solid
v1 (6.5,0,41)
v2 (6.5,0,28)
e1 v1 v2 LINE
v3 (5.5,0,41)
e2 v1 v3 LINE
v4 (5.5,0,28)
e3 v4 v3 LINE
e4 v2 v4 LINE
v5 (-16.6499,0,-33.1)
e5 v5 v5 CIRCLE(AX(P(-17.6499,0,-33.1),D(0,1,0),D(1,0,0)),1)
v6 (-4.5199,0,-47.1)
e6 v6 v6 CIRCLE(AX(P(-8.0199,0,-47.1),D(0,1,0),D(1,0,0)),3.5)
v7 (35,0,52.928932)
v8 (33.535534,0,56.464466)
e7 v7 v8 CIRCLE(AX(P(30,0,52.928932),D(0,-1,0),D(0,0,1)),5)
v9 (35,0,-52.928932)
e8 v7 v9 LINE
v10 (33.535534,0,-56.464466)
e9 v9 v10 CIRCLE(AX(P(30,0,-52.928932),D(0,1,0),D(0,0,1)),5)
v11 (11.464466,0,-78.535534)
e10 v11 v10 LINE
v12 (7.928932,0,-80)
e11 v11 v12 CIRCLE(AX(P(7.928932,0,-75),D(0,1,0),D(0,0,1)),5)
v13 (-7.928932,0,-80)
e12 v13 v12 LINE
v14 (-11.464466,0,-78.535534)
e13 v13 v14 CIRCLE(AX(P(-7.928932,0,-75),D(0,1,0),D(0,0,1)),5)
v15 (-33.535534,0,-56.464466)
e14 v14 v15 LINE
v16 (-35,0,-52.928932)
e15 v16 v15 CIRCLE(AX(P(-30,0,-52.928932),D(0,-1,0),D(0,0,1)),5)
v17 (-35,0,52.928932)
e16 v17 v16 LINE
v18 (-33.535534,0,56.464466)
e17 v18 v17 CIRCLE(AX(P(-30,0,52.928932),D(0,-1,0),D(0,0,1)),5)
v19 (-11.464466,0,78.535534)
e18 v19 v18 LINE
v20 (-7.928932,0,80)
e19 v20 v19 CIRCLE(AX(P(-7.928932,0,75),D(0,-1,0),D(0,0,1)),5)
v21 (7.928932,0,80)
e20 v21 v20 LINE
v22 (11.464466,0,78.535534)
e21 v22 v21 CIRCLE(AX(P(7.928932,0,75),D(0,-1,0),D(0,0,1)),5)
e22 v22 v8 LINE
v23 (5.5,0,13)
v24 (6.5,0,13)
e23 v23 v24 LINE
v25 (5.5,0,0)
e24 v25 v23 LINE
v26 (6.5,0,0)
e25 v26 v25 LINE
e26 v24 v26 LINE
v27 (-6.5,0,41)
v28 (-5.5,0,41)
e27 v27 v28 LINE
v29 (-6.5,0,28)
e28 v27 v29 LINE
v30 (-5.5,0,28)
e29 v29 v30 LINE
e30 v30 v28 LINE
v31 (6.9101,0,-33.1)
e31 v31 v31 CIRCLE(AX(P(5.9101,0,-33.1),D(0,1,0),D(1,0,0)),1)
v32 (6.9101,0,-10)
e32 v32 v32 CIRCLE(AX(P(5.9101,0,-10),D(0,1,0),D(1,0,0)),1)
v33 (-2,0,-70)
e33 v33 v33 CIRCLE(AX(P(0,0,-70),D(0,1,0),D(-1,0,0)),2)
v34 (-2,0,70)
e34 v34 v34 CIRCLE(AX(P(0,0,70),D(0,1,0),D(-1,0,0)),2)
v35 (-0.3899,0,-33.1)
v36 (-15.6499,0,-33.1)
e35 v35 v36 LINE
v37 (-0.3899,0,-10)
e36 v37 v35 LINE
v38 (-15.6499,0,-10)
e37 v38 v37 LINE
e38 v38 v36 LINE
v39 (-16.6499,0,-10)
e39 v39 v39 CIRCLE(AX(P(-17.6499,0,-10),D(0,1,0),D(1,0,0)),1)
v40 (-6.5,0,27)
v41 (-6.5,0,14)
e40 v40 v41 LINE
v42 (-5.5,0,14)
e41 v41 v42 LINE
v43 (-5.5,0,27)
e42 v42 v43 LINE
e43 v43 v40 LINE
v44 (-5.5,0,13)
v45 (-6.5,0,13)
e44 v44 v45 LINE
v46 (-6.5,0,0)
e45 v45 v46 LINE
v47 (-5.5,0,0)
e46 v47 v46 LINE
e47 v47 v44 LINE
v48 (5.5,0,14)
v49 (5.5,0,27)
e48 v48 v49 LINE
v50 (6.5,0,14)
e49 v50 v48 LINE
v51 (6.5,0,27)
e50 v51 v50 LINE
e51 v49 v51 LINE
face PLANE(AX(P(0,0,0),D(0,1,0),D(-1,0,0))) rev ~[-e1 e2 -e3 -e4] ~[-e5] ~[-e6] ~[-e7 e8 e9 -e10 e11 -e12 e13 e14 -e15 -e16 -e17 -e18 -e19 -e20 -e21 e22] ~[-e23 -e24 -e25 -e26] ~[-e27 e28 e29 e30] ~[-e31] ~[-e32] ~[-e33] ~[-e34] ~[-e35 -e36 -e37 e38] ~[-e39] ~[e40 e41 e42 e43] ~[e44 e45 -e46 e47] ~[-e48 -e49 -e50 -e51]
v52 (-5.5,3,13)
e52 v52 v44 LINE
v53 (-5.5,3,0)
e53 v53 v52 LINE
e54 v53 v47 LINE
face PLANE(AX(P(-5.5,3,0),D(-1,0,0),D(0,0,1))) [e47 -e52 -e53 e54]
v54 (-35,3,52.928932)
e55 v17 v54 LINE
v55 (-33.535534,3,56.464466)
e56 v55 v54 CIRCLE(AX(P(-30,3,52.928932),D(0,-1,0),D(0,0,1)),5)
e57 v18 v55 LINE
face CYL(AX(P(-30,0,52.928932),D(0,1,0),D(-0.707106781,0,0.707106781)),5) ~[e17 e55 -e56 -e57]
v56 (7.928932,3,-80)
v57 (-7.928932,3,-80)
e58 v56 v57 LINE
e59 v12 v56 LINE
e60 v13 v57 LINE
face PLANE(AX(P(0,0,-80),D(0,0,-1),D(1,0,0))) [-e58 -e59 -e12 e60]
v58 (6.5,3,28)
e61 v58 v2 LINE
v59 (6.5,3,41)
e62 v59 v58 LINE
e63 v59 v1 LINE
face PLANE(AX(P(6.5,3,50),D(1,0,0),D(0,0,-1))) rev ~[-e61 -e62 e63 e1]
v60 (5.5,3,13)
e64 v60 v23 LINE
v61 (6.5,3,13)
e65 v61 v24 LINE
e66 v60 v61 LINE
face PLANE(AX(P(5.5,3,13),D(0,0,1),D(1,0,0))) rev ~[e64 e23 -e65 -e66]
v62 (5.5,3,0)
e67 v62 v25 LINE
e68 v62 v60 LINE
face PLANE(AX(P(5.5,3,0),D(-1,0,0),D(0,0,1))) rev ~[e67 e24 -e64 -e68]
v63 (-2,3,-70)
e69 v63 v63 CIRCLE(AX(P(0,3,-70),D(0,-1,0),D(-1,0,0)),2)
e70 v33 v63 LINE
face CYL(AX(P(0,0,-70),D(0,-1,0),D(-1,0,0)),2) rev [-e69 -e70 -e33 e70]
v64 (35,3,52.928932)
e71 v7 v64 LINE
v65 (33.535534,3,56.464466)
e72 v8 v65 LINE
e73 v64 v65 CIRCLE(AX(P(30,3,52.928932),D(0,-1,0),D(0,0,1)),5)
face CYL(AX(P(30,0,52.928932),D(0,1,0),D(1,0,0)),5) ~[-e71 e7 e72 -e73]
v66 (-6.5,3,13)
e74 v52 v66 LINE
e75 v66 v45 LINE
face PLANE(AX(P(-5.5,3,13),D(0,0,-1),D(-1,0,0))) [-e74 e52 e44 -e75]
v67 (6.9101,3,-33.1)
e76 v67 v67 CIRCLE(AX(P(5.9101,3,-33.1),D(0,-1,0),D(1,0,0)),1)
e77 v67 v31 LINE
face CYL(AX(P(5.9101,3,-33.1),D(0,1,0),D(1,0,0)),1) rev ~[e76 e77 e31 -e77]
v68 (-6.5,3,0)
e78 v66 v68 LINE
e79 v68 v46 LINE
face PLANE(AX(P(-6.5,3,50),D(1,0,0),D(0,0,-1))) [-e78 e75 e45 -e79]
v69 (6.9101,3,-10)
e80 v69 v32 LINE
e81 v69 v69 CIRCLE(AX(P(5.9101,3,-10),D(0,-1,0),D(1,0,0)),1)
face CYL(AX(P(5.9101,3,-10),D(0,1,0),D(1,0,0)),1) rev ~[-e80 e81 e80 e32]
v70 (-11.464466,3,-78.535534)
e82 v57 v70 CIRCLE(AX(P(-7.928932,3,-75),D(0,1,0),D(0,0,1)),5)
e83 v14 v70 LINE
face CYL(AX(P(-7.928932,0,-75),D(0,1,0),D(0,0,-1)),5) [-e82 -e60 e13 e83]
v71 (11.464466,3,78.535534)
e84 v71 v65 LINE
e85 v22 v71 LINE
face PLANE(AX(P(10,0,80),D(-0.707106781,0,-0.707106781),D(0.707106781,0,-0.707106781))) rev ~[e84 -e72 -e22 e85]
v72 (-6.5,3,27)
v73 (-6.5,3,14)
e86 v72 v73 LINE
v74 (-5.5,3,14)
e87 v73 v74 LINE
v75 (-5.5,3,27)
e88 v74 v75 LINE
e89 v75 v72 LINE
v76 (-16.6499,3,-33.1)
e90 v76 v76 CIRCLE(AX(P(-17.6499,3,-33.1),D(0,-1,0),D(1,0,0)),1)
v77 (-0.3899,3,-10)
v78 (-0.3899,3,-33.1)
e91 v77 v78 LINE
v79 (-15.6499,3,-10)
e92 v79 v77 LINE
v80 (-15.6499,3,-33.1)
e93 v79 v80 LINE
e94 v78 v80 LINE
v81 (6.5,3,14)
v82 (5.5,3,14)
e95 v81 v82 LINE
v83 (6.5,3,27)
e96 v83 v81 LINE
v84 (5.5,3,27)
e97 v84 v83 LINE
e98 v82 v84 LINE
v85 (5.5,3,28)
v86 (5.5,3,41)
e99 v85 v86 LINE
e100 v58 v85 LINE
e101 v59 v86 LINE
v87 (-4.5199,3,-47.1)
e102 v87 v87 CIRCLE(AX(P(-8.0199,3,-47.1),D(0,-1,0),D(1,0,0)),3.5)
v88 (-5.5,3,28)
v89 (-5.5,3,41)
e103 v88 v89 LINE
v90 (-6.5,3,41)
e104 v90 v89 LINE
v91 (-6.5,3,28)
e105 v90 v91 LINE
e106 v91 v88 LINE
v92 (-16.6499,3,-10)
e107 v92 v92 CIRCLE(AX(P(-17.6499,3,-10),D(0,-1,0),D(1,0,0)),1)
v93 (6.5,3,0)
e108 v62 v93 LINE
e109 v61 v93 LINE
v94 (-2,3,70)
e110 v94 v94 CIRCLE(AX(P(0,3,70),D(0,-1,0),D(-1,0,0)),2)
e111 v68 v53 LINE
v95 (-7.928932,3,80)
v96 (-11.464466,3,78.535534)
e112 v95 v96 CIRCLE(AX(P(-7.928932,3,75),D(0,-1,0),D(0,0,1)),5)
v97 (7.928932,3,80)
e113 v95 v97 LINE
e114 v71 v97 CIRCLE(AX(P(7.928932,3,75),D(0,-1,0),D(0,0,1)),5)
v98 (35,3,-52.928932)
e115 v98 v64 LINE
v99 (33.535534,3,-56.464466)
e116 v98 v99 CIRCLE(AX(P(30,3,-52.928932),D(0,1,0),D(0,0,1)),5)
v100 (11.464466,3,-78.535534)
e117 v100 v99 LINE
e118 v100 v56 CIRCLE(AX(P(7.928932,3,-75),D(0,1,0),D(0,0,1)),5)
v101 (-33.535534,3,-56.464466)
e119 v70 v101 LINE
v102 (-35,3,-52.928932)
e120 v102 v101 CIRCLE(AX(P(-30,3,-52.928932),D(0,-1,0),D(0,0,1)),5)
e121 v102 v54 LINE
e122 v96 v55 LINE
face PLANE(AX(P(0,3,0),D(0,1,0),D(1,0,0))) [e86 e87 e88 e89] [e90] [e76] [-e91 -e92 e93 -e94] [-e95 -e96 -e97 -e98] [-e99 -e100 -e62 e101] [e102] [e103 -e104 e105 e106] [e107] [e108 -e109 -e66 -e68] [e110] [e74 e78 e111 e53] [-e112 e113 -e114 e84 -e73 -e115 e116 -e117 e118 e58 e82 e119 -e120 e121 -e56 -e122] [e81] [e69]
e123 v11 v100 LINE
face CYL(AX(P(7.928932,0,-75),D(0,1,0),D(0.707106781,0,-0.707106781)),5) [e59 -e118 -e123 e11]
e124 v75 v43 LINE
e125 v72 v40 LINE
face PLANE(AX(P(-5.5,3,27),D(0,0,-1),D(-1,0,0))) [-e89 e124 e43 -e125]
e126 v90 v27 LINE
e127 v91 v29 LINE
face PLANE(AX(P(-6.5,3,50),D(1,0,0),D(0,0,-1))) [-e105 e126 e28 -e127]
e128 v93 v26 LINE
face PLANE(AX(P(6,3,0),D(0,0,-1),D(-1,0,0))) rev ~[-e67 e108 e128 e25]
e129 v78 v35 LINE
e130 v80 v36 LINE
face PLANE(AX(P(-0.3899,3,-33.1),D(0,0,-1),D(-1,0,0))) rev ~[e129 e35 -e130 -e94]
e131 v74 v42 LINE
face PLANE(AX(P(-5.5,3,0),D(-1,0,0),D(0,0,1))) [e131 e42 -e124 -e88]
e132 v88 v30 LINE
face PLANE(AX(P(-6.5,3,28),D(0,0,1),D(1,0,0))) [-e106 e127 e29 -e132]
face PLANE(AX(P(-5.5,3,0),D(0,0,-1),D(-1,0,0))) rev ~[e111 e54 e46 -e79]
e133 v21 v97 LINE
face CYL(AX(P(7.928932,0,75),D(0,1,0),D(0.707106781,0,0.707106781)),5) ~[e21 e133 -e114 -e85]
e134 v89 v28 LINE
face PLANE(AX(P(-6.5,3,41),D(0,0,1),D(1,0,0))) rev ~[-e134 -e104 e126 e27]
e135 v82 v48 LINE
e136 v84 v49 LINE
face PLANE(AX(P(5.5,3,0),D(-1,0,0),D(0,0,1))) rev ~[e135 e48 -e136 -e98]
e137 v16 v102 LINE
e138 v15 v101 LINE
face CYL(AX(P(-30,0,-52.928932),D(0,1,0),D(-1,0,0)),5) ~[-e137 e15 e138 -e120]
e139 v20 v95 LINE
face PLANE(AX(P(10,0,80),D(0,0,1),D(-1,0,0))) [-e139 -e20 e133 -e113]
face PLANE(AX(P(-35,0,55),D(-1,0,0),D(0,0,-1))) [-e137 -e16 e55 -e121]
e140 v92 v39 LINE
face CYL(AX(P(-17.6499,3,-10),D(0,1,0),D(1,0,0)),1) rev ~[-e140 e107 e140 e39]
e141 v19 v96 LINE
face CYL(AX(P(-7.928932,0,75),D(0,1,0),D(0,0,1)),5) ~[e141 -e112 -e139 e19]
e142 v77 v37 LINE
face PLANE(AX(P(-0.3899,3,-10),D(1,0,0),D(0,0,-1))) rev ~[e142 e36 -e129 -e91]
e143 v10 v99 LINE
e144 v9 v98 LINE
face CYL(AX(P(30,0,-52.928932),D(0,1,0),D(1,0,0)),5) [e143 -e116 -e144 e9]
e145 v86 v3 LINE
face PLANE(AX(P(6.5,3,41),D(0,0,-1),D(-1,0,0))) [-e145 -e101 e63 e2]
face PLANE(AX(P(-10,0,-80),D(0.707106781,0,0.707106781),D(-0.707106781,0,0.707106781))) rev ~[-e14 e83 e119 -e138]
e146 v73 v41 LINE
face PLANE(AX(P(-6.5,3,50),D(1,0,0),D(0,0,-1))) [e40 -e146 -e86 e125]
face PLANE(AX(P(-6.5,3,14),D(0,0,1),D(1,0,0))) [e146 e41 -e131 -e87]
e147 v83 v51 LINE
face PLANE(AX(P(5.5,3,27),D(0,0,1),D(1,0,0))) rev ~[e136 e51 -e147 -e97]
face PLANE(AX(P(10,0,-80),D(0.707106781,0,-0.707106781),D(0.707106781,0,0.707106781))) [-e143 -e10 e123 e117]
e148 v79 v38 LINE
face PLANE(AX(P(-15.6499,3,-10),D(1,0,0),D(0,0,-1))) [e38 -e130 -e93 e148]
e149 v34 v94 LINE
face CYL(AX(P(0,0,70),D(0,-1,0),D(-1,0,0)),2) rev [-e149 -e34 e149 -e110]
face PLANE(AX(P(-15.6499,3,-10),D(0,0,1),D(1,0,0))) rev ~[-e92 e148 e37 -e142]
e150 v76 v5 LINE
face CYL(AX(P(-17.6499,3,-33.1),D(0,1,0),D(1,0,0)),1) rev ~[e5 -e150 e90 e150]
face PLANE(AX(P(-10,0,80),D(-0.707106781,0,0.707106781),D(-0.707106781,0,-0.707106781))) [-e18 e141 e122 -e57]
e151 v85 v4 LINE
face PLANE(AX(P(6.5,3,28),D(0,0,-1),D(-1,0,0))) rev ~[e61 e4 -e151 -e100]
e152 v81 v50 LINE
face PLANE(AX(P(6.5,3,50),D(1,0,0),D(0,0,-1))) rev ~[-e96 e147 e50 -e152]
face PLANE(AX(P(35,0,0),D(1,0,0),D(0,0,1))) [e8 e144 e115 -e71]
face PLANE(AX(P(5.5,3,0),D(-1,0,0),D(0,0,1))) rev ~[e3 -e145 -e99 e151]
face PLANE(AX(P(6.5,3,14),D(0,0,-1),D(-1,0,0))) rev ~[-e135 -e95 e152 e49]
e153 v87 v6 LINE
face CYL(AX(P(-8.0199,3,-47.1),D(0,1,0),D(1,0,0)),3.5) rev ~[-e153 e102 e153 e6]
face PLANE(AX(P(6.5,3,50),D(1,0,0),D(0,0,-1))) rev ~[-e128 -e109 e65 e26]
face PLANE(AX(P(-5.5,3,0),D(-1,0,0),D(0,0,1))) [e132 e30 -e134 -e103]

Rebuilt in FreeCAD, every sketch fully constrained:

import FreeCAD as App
import Part
import Sketcher

V = App.Vector
Q = App.Units.Quantity


def edges_at(feature, points):
    """Names of the edges that pass closest to the given points."""
    edges = feature.Shape.Edges
    near = lambda p: min(range(len(edges)), key=lambda i: edges[i].distToShape(Part.Vertex(*p))[0])
    return sorted({f"Edge{near(p) + 1}" for p in points})


def add_polygon(sketch, points):
    """Adds a closed chain of lines whose ends are joined by coincident constraints."""
    first, n = sketch.GeometryCount, len(points)
    for a, b in zip(points, points[1:] + points[:1]):
        sketch.addGeometry(Part.LineSegment(App.Vector(*a, 0), App.Vector(*b, 0)), False)
    for i in range(n):
        sketch.addConstraint(Sketcher.Constraint("Coincident", first + i, 2, first + (i + 1) % n, 1))

doc = App.newDocument("Part")
body = doc.addObject("PartDesign::Body", "Body")

# Sketch on XZ plane
sketch1 = doc.addObject("Sketcher::SketchObject", "Sketch")
body.addObject(sketch1)
sketch1.AttachmentSupport = (doc.XZ_Plane, [""])
sketch1.MapMode = "FlatFace"
add_polygon(sketch1, [(35, 55), (35, -55), (10, -80), (-10, -80), (-35, -55), (-35, 55), (-10, 80), (10, 80)])  # lines 0-7
sketch1.addGeometry(Part.Circle(V(0, 70, 0), V(0, 0, 1), 2), False)  # 8
sketch1.addGeometry(Part.Circle(V(0, -70, 0), V(0, 0, 1), 2), False)  # 9
sketch1.addConstraint([
    Sketcher.Constraint("Vertical", 0),
    Sketcher.Constraint("Horizontal", 2),
    Sketcher.Constraint("Vertical", 4),
    Sketcher.Constraint("Horizontal", 6),
    Sketcher.Constraint("Equal", 8, 9),
    Sketcher.Constraint("Symmetric", 8, 3, 9, 3, -1, 1),
    Sketcher.Constraint("Symmetric", 0, 2, 4, 2, -1, 1),
    Sketcher.Constraint("Symmetric", 1, 2, 5, 2, -1, 1),
    Sketcher.Constraint("PointOnObject", 8, 3, -2),
    Sketcher.Constraint("Perpendicular", 1, 3),
    Sketcher.Constraint("Perpendicular", 5, 7),
    Sketcher.Constraint("Horizontal", 0, 2, 3, 2),
    Sketcher.Constraint("Horizontal", 4, 2, 7, 2),
    Sketcher.Constraint("Vertical", 2, 2, 5, 2),
    Sketcher.Constraint("Diameter", 8, Q("4 mm")),
    Sketcher.Constraint("DistanceY", -1, 1, 8, 3, Q("70 mm")),
    Sketcher.Constraint("DistanceX", -1, 1, 0, 2, Q("35 mm")),
    Sketcher.Constraint("DistanceX", -1, 1, 1, 2, Q("10 mm")),
    Sketcher.Constraint("DistanceY", 1, 2, -1, 1, Q("80 mm")),
])
pad1 = doc.addObject("PartDesign::Pad", "Pad")
body.addObject(pad1)
pad1.Profile = sketch1
pad1.Length = 3
pad1.Reversed = True
doc.recompute()

fillet = doc.addObject("PartDesign::Fillet", "Fillet")
body.addObject(fillet)
fillet.Base = (pad1, edges_at(pad1, [
    (-35, 1.5, 55),
    (-10, 1.5, 80),
    (-35, 1.5, -55),
    (35, 1.5, 55),
    (10, 1.5, 80),
    (35, 1.5, -55),
    (10, 1.5, -80),
    (-10, 1.5, -80),
]))
fillet.Radius = 5

# Sketch on XZ plane
sketch2 = doc.addObject("Sketcher::SketchObject", "Sketch001")
body.addObject(sketch2)
sketch2.AttachmentSupport = (doc.XZ_Plane, [""])
sketch2.MapMode = "FlatFace"
sketch2.AttachmentOffset = App.Placement(V(0, 0, -3), App.Rotation())
sketch2.addGeometry(Part.Circle(V(20, -21.6, 0), V(0, 0, 1), 3.5), False)  # 0
add_polygon(sketch2, [(-5.5, 50), (-5.5, 0), (-6.5, 0), (-6.5, 50)])  # lines 1-4
add_polygon(sketch2, [(5.5, 0), (5.5, 50), (6.5, 50), (6.5, 0)])  # lines 5-8
sketch2.addGeometry(Part.Circle(V(-17.6, -10, 0), V(0, 0, 1), 1), False)  # 9
sketch2.addGeometry(Part.Circle(V(5.9, -10, 0), V(0, 0, 1), 1), False)  # 10
sketch2.addGeometry(Part.Circle(V(-17.6, -33.1, 0), V(0, 0, 1), 1), False)  # 11
sketch2.addGeometry(Part.Circle(V(5.9, -33.1, 0), V(0, 0, 1), 1), False)  # 12
sketch2.addConstraint([
    Sketcher.Constraint("Vertical", 1),
    Sketcher.Constraint("Horizontal", 2),
    Sketcher.Constraint("Vertical", 3),
    Sketcher.Constraint("Horizontal", 4),
    Sketcher.Constraint("Vertical", 5),
    Sketcher.Constraint("Horizontal", 6),
    Sketcher.Constraint("Vertical", 7),
    Sketcher.Constraint("Horizontal", 8),
    Sketcher.Constraint("Equal", 9, 10),
    Sketcher.Constraint("Equal", 10, 11),
    Sketcher.Constraint("Equal", 11, 12),
    Sketcher.Constraint("Symmetric", 2, 2, 7, 2, -1, 1),
    Sketcher.Constraint("Symmetric", 4, 2, 5, 2, -2),
    Sketcher.Constraint("PointOnObject", 1, 2, -1),
    Sketcher.Constraint("Horizontal", 9, 3, 10, 3),
    Sketcher.Constraint("Horizontal", 11, 3, 12, 3),
    Sketcher.Constraint("Vertical", 9, 3, 11, 3),
    Sketcher.Constraint("Vertical", 10, 3, 12, 3),
    Sketcher.Constraint("Diameter", 0, Q("7 mm")),
    Sketcher.Constraint("Diameter", 9, Q("2 mm")),
    Sketcher.Constraint("DistanceX", 2, 2, 2, 1, Q("1 mm")),
    Sketcher.Constraint("DistanceY", 1, 2, 1, 1, Q("50 mm")),
    Sketcher.Constraint("DistanceX", -1, 1, 0, 3, Q("20 mm")),
    Sketcher.Constraint("DistanceY", 9, 3, -1, 1, Q("10 mm")),
    Sketcher.Constraint("DistanceX", 3, 2, 5, 2, Q("12 mm")),
    Sketcher.Constraint("DistanceY", 11, 3, 9, 3, Q("23.1 mm")),
    Sketcher.Constraint("DistanceY", 0, 3, 9, 3, Q("11.55 mm")),
    Sketcher.Constraint("DistanceX", 9, 3, 10, 3, Q("23.56 mm")),
    Sketcher.Constraint("DistanceX", 9, 3, -1, 1, Q("17.65 mm")),
])
pocket1 = doc.addObject("PartDesign::Pocket", "Pocket")
body.addObject(pocket1)
pocket1.Profile = sketch2
pocket1.Length = 10
pocket1.Reversed = True

# Sketch on XZ plane
sketch3 = doc.addObject("Sketcher::SketchObject", "Sketch002")
body.addObject(sketch3)
sketch3.AttachmentSupport = (doc.XZ_Plane, [""])
sketch3.MapMode = "FlatFace"
sketch3.AttachmentOffset = App.Placement(V(0, 0, -3), App.Rotation())
add_polygon(sketch3, [(-6.5, 50), (-5.5, 50), (-5.5, 41), (-6.5, 41)])  # lines 0-3
add_polygon(sketch3, [(-6.5, 28), (-5.5, 28), (-5.5, 27), (-6.5, 27)])  # lines 4-7
add_polygon(sketch3, [(-6.5, 14), (-5.5, 14), (-5.5, 13), (-6.5, 13)])  # lines 8-11
add_polygon(sketch3, [(5.5, 41), (5.5, 50), (6.5, 50), (6.5, 41)])  # lines 12-15
add_polygon(sketch3, [(5.5, 27), (5.5, 28), (6.5, 28), (6.5, 27)])  # lines 16-19
add_polygon(sketch3, [(5.5, 13), (5.5, 14), (6.5, 14), (6.5, 13)])  # lines 20-23
sketch3.addConstraint([
    Sketcher.Constraint("Horizontal", 0),
    Sketcher.Constraint("Vertical", 1),
    Sketcher.Constraint("Horizontal", 2),
    Sketcher.Constraint("Vertical", 3),
    Sketcher.Constraint("Horizontal", 4),
    Sketcher.Constraint("Vertical", 5),
    Sketcher.Constraint("Horizontal", 6),
    Sketcher.Constraint("Vertical", 7),
    Sketcher.Constraint("Horizontal", 8),
    Sketcher.Constraint("Vertical", 9),
    Sketcher.Constraint("Horizontal", 10),
    Sketcher.Constraint("Vertical", 11),
    Sketcher.Constraint("Vertical", 12),
    Sketcher.Constraint("Horizontal", 13),
    Sketcher.Constraint("Vertical", 14),
    Sketcher.Constraint("Horizontal", 15),
    Sketcher.Constraint("Vertical", 16),
    Sketcher.Constraint("Horizontal", 17),
    Sketcher.Constraint("Vertical", 18),
    Sketcher.Constraint("Horizontal", 19),
    Sketcher.Constraint("Vertical", 20),
    Sketcher.Constraint("Horizontal", 21),
    Sketcher.Constraint("Vertical", 22),
    Sketcher.Constraint("Horizontal", 23),
    Sketcher.Constraint("Symmetric", 0, 2, 12, 2, -2),
    Sketcher.Constraint("Symmetric", 2, 2, 14, 2, -2),
    Sketcher.Constraint("Symmetric", 4, 2, 16, 2, -2),
    Sketcher.Constraint("Symmetric", 6, 2, 18, 2, -2),
    Sketcher.Constraint("Symmetric", 8, 2, 20, 2, -2),
    Sketcher.Constraint("Symmetric", 10, 2, 22, 2, -2),
    Sketcher.Constraint("Vertical", 1, 2, 4, 2),
    Sketcher.Constraint("Vertical", 3, 2, 6, 2),
    Sketcher.Constraint("Vertical", 5, 2, 8, 2),
    Sketcher.Constraint("Vertical", 7, 2, 10, 2),
    Sketcher.Constraint("Equal", 23, 5),
    Sketcher.Constraint("Equal", 7, 9),
    Sketcher.Constraint("DistanceX", 0, 1, 0, 2, Q("1 mm")),
    Sketcher.Constraint("DistanceY", -1, 1, 9, 2, Q("13 mm")),
    Sketcher.Constraint("DistanceY", 4, 2, 1, 2, Q("13 mm")),
    Sketcher.Constraint("DistanceY", 8, 2, 5, 2, Q("13 mm")),
    Sketcher.Constraint("DistanceX", 3, 2, 13, 2, Q("13 mm")),
    Sketcher.Constraint("DistanceY", 1, 2, 1, 1, Q("9 mm")),
])
pad2 = doc.addObject("PartDesign::Pad", "Pad001")
body.addObject(pad2)
pad2.Profile = sketch3
pad2.Length = 3

# Sketch on XZ plane
sketch4 = doc.addObject("Sketcher::SketchObject", "Sketch003")
body.addObject(sketch4)
sketch4.AttachmentSupport = (doc.XZ_Plane, [""])
sketch4.MapMode = "FlatFace"
sketch4.AttachmentOffset = App.Placement(V(0, 0, -3), App.Rotation())
add_polygon(sketch4, [(-16, -33), (-16, -10), (0, -10), (0, -33)])  # lines 0-3
sketch4.addConstraint([
    Sketcher.Constraint("Vertical", 0),
    Sketcher.Constraint("Horizontal", 1),
    Sketcher.Constraint("Vertical", 2),
    Sketcher.Constraint("Horizontal", 3),
    Sketcher.Constraint("DistanceY", 0, 1, 0, 2, Q("23.1 mm")),
    Sketcher.Constraint("DistanceY", 0, 2, -1, 1, Q("10 mm")),
    Sketcher.Constraint("DistanceX", 1, 1, 1, 2, Q("15.26 mm")),
    Sketcher.Constraint("DistanceX", 0, 2, -1, 1, Q("15.65 mm")),
])
pocket2 = doc.addObject("PartDesign::Pocket", "Pocket001")
body.addObject(pocket2)
pocket2.Profile = sketch4
pocket2.Length = 10
pocket2.Reversed = True

# Sketch on XZ plane
sketch5 = doc.addObject("Sketcher::SketchObject", "Sketch004")
body.addObject(sketch5)
sketch5.AttachmentSupport = (doc.XZ_Plane, [""])
sketch5.MapMode = "FlatFace"
sketch5.AttachmentOffset = App.Placement(V(0, 0, -3), App.Rotation())
sketch5.addGeometry(Part.Circle(V(20, -21.6, 0), V(0, 0, 1), 3.5), False)
sketch5.addConstraint([
    Sketcher.Constraint("Diameter", 0, Q("7 mm")),
    Sketcher.Constraint("DistanceX", -1, 1, 0, 3, Q("20 mm")),
    Sketcher.Constraint("DistanceY", 0, 3, -1, 1, Q("21.55 mm")),
])
pad3 = doc.addObject("PartDesign::Pad", "Pad002")
body.addObject(pad3)
pad3.Profile = sketch5
pad3.Length = 3

# Sketch on XZ plane
sketch6 = doc.addObject("Sketcher::SketchObject", "Sketch005")
body.addObject(sketch6)
sketch6.AttachmentSupport = (doc.XZ_Plane, [""])
sketch6.MapMode = "FlatFace"
sketch6.AttachmentOffset = App.Placement(V(0, 0, -3), App.Rotation())
sketch6.addGeometry(Part.Circle(V(-8, -47.1, 0), V(0, 0, 1), 3.5), False)
sketch6.addConstraint([
    Sketcher.Constraint("Diameter", 0, Q("7 mm")),
    Sketcher.Constraint("DistanceY", 0, 3, -1, 1, Q("47.1 mm")),
    Sketcher.Constraint("DistanceX", 0, 3, -1, 1, Q("8.02 mm")),
])
pocket3 = doc.addObject("PartDesign::Pocket", "Pocket002")
body.addObject(pocket3)
pocket3.Profile = sketch6
pocket3.Length = 3
pocket3.Reversed = True

doc.recompute()
